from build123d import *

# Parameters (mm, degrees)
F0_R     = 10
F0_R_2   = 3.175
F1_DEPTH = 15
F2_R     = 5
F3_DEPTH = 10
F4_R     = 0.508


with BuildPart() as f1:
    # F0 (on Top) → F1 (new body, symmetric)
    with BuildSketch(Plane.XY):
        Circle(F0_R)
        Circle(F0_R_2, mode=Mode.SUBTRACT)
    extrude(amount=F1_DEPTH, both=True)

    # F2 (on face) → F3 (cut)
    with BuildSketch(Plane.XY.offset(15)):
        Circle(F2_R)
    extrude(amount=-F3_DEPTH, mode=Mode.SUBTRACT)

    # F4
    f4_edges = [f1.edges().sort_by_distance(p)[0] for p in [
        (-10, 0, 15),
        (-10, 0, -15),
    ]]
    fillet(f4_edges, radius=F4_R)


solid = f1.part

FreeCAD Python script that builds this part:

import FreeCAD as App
import Part
import Sketcher


def edges_at(feature, points):
    """Names of the edges that pass closest to the given points."""
    edges = feature.Shape.Edges
    near = lambda p: min(range(len(edges)), key=lambda i: edges[i].distToShape(Part.Vertex(*p))[0])
    return sorted({f"Edge{near(p) + 1}" for p in points})

doc = App.newDocument("Part")
body = doc.addObject("PartDesign::Body", "Body")

sketch1 = body.newObject("Sketcher::SketchObject", "Sketch")
sketch1.AttachmentSupport = (doc.getObject("XY_Plane"), [""])
sketch1.MapMode = "FlatFace"
sketch1.addGeometry([
    Part.Circle(App.Vector(0, 0, 0), App.Vector(0, 0, 1), 10),
    Part.Circle(App.Vector(0, 0, 0), App.Vector(0, 0, 1), 3.175),
], False)
sketch1.addConstraint([
    Sketcher.Constraint("Coincident", 0, 3, -1, 1),
    Sketcher.Constraint("Coincident", 1, 3, -1, 1),
    Sketcher.Constraint("Diameter", 0, 20.0),
    Sketcher.Constraint("Diameter", 1, 6.35),
])
pad1 = body.newObject("PartDesign::Pad", "Pad")
pad1.Profile = sketch1
pad1.Length = 30
pad1.Midplane = True

sketch2 = body.newObject("Sketcher::SketchObject", "Sketch001")
sketch2.AttachmentSupport = (doc.getObject("XY_Plane"), [""])
sketch2.MapMode = "FlatFace"
sketch2.AttachmentOffset = App.Placement(App.Vector(0, 0, 15), App.Rotation())
sketch2.addGeometry(Part.Circle(App.Vector(0, 0, 0), App.Vector(0, 0, 1), 5), False)
sketch2.addConstraint([
    Sketcher.Constraint("Coincident", 0, 3, -1, 1),
    Sketcher.Constraint("Diameter", 0, 10.0),
])
pocket1 = body.newObject("PartDesign::Pocket", "Pocket")
pocket1.Profile = sketch2
pocket1.Length = 10
doc.recompute()

fillet = body.newObject("PartDesign::Fillet", "Fillet")
fillet.Base = (pocket1, edges_at(pocket1, [(-10, 0, 15), (-10, 0, -15)]))
fillet.Radius = 0.508

doc.recompute()
